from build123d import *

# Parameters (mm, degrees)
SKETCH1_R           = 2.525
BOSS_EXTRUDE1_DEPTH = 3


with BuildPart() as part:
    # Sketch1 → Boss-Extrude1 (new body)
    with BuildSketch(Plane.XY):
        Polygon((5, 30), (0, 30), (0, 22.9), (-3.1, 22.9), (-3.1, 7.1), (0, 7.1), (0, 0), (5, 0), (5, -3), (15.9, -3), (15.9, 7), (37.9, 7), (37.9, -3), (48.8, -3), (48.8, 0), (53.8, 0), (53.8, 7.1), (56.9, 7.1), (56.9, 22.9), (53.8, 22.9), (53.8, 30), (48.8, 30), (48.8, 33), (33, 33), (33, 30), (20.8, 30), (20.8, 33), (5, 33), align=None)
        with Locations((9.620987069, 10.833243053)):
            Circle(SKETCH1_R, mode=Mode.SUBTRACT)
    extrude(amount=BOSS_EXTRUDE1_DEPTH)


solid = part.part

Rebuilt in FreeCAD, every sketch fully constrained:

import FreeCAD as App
import Part
import Sketcher

V = App.Vector

doc = App.newDocument("Part")
body = doc.addObject("PartDesign::Body", "Body")

sketch1 = body.newObject("Sketcher::SketchObject", "Sketch")
sketch1.AttachmentSupport = (doc.getObject("XY_Plane"), [""])
sketch1.MapMode = "FlatFace"
sketch1.addGeometry(Part.LineSegment(V(5, 30, 0), V(0, 30, 0)), False)
sketch1.addGeometry(Part.LineSegment(V(0, 30, 0), V(0, 22.9, 0)), False)
sketch1.addGeometry(Part.LineSegment(V(0, 22.9, 0), V(-3.1, 22.9, 0)), False)
sketch1.addGeometry(Part.LineSegment(V(-3.1, 22.9, 0), V(-3.1, 7.1, 0)), False)
sketch1.addGeometry(Part.LineSegment(V(-3.1, 7.1, 0), V(0, 7.1, 0)), False)
sketch1.addGeometry(Part.LineSegment(V(0, 7.1, 0), V(0, 0, 0)), False)
sketch1.addGeometry(Part.LineSegment(V(0, 0, 0), V(5, 0, 0)), False)
sketch1.addGeometry(Part.LineSegment(V(5, 0, 0), V(5, -3, 0)), False)
sketch1.addGeometry(Part.LineSegment(V(5, -3, 0), V(15.9, -3, 0)), False)
sketch1.addGeometry(Part.LineSegment(V(15.9, -3, 0), V(15.9, 7, 0)), False)
sketch1.addGeometry(Part.LineSegment(V(15.9, 7, 0), V(37.9, 7, 0)), False)
sketch1.addGeometry(Part.LineSegment(V(37.9, 7, 0), V(37.9, -3, 0)), False)
sketch1.addGeometry(Part.LineSegment(V(37.9, -3, 0), V(48.8, -3, 0)), False)
sketch1.addGeometry(Part.LineSegment(V(48.8, -3, 0), V(48.8, 0, 0)), False)
sketch1.addGeometry(Part.LineSegment(V(48.8, 0, 0), V(53.8, 0, 0)), False)
sketch1.addGeometry(Part.LineSegment(V(53.8, 0, 0), V(53.8, 7.1, 0)), False)
sketch1.addGeometry(Part.LineSegment(V(53.8, 7.1, 0), V(56.9, 7.1, 0)), False)
sketch1.addGeometry(Part.LineSegment(V(56.9, 7.1, 0), V(56.9, 22.9, 0)), False)
sketch1.addGeometry(Part.LineSegment(V(56.9, 22.9, 0), V(53.8, 22.9, 0)), False)
sketch1.addGeometry(Part.LineSegment(V(53.8, 22.9, 0), V(53.8, 30, 0)), False)
sketch1.addGeometry(Part.LineSegment(V(53.8, 30, 0), V(48.8, 30, 0)), False)
sketch1.addGeometry(Part.LineSegment(V(48.8, 30, 0), V(48.8, 33, 0)), False)
sketch1.addGeometry(Part.LineSegment(V(48.8, 33, 0), V(33, 33, 0)), False)
sketch1.addGeometry(Part.LineSegment(V(33, 33, 0), V(33, 30, 0)), False)
sketch1.addGeometry(Part.LineSegment(V(33, 30, 0), V(20.8, 30, 0)), False)
sketch1.addGeometry(Part.LineSegment(V(20.8, 30, 0), V(20.8, 33, 0)), False)
sketch1.addGeometry(Part.LineSegment(V(20.8, 33, 0), V(5, 33, 0)), False)
sketch1.addGeometry(Part.LineSegment(V(5, 33, 0), V(5, 30, 0)), False)
sketch1.addGeometry(Part.Circle(V(9.620987, 10.833243, 0), V(0, 0, 1), 2.525), False)
sketch1.addConstraint(Sketcher.Constraint("Coincident", 0, 2, 1, 1))
sketch1.addConstraint(Sketcher.Constraint("Coincident", 1, 2, 2, 1))
sketch1.addConstraint(Sketcher.Constraint("Coincident", 2, 2, 3, 1))
sketch1.addConstraint(Sketcher.Constraint("Coincident", 3, 2, 4, 1))
sketch1.addConstraint(Sketcher.Constraint("Coincident", 4, 2, 5, 1))
sketch1.addConstraint(Sketcher.Constraint("Coincident", 5, 2, 6, 1))
sketch1.addConstraint(Sketcher.Constraint("Coincident", 6, 2, 7, 1))
sketch1.addConstraint(Sketcher.Constraint("Coincident", 7, 2, 8, 1))
sketch1.addConstraint(Sketcher.Constraint("Coincident", 8, 2, 9, 1))
sketch1.addConstraint(Sketcher.Constraint("Coincident", 9, 2, 10, 1))
sketch1.addConstraint(Sketcher.Constraint("Coincident", 10, 2, 11, 1))
sketch1.addConstraint(Sketcher.Constraint("Coincident", 11, 2, 12, 1))
sketch1.addConstraint(Sketcher.Constraint("Coincident", 12, 2, 13, 1))
sketch1.addConstraint(Sketcher.Constraint("Coincident", 13, 2, 14, 1))
sketch1.addConstraint(Sketcher.Constraint("Coincident", 14, 2, 15, 1))
sketch1.addConstraint(Sketcher.Constraint("Coincident", 15, 2, 16, 1))
sketch1.addConstraint(Sketcher.Constraint("Coincident", 16, 2, 17, 1))
sketch1.addConstraint(Sketcher.Constraint("Coincident", 17, 2, 18, 1))
sketch1.addConstraint(Sketcher.Constraint("Coincident", 18, 2, 19, 1))
sketch1.addConstraint(Sketcher.Constraint("Coincident", 19, 2, 20, 1))
sketch1.addConstraint(Sketcher.Constraint("Coincident", 20, 2, 21, 1))
sketch1.addConstraint(Sketcher.Constraint("Coincident", 21, 2, 22, 1))
sketch1.addConstraint(Sketcher.Constraint("Coincident", 22, 2, 23, 1))
sketch1.addConstraint(Sketcher.Constraint("Coincident", 23, 2, 24, 1))
sketch1.addConstraint(Sketcher.Constraint("Coincident", 24, 2, 25, 1))
sketch1.addConstraint(Sketcher.Constraint("Coincident", 25, 2, 26, 1))
sketch1.addConstraint(Sketcher.Constraint("Coincident", 26, 2, 27, 1))
sketch1.addConstraint(Sketcher.Constraint("Coincident", 27, 2, 0, 1))
sketch1.addConstraint(Sketcher.Constraint("Horizontal", 0))
sketch1.addConstraint(Sketcher.Constraint("Vertical", 1))
sketch1.addConstraint(Sketcher.Constraint("Horizontal", 2))
sketch1.addConstraint(Sketcher.Constraint("Vertical", 3))
sketch1.addConstraint(Sketcher.Constraint("Horizontal", 4))
sketch1.addConstraint(Sketcher.Constraint("Vertical", 5))
sketch1.addConstraint(Sketcher.Constraint("Horizontal", 6))
sketch1.addConstraint(Sketcher.Constraint("Vertical", 7))
sketch1.addConstraint(Sketcher.Constraint("Horizontal", 8))
sketch1.addConstraint(Sketcher.Constraint("Vertical", 9))
sketch1.addConstraint(Sketcher.Constraint("Horizontal", 10))
sketch1.addConstraint(Sketcher.Constraint("Vertical", 11))
sketch1.addConstraint(Sketcher.Constraint("Horizontal", 12))
sketch1.addConstraint(Sketcher.Constraint("Vertical", 13))
sketch1.addConstraint(Sketcher.Constraint("Horizontal", 14))
sketch1.addConstraint(Sketcher.Constraint("Vertical", 15))
sketch1.addConstraint(Sketcher.Constraint("Horizontal", 16))
sketch1.addConstraint(Sketcher.Constraint("Vertical", 17))
sketch1.addConstraint(Sketcher.Constraint("Horizontal", 18))
sketch1.addConstraint(Sketcher.Constraint("Vertical", 19))
sketch1.addConstraint(Sketcher.Constraint("Horizontal", 20))
sketch1.addConstraint(Sketcher.Constraint("Vertical", 21))
sketch1.addConstraint(Sketcher.Constraint("Horizontal", 22))
sketch1.addConstraint(Sketcher.Constraint("Vertical", 23))
sketch1.addConstraint(Sketcher.Constraint("Horizontal", 24))
sketch1.addConstraint(Sketcher.Constraint("Vertical", 25))
sketch1.addConstraint(Sketcher.Constraint("Horizontal", 26))
sketch1.addConstraint(Sketcher.Constraint("Vertical", 27))
sketch1.addConstraint(Sketcher.Constraint("Coincident", 5, 2, -1, 1))
sketch1.addConstraint(Sketcher.Constraint("PointOnObject", 0, 2, -2))
sketch1.addConstraint(Sketcher.Constraint("PointOnObject", 13, 2, -1))
sketch1.addConstraint(Sketcher.Constraint("Horizontal", 8, 2, 11, 2))
sketch1.addConstraint(Sketcher.Constraint("Horizontal", 4, 2, 15, 2))
sketch1.addConstraint(Sketcher.Constraint("Horizontal", 2, 2, 17, 2))
sketch1.addConstraint(Sketcher.Constraint("Horizontal", 0, 2, 19, 2))
sketch1.addConstraint(Sketcher.Constraint("Horizontal", 20, 2, 23, 2))
sketch1.addConstraint(Sketcher.Constraint("Horizontal", 22, 2, 25, 2))
sketch1.addConstraint(Sketcher.Constraint("Vertical", 15, 2, 18, 2))
sketch1.addConstraint(Sketcher.Constraint("Vertical", 13, 2, 20, 2))
sketch1.addConstraint(Sketcher.Constraint("Vertical", 7, 2, 26, 2))
sketch1.addConstraint(Sketcher.Constraint("Equal", 8, 12))
sketch1.addConstraint(Sketcher.Constraint("Equal", 6, 14))
sketch1.addConstraint(Sketcher.Constraint("Equal", 4, 16))
sketch1.addConstraint(Sketcher.Constraint("Equal", 22, 26))
sketch1.addConstraint(Sketcher.Constraint("Equal", 26, 3))
sketch1.addConstraint(Sketcher.Constraint("Equal", 1, 5))
sketch1.addConstraint(Sketcher.Constraint("Equal", 13, 21))
sketch1.addConstraint(Sketcher.Constraint("Diameter", 28, 5.05))
sketch1.addConstraint(Sketcher.Constraint("DistanceX", 0, 2, 0, 1, 5.0))
sketch1.addConstraint(Sketcher.Constraint("DistanceX", 10, 1, 10, 2, 22.0))
sketch1.addConstraint(Sketcher.Constraint("DistanceY", 7, 2, 7, 1, 3.0))
sketch1.addConstraint(Sketcher.Constraint("DistanceY", 9, 1, 9, 2, 10.0))
sketch1.addConstraint(Sketcher.Constraint("DistanceX", 2, 2, 2, 1, 3.1))
sketch1.addConstraint(Sketcher.Constraint("DistanceX", 8, 1, 8, 2, 10.9))
sketch1.addConstraint(Sketcher.Constraint("DistanceX", 22, 2, 22, 1, 15.8))
sketch1.addConstraint(Sketcher.Constraint("DistanceY", 1, 2, 1, 1, 7.1))
sketch1.addConstraint(Sketcher.Constraint("DistanceX", -1, 1, 28, 3, 9.620987))
sketch1.addConstraint(Sketcher.Constraint("DistanceY", -1, 1, 28, 3, 10.833243))
pad1 = body.newObject("PartDesign::Pad", "Pad")
pad1.Profile = sketch1
pad1.Length = 3

doc.recompute()
